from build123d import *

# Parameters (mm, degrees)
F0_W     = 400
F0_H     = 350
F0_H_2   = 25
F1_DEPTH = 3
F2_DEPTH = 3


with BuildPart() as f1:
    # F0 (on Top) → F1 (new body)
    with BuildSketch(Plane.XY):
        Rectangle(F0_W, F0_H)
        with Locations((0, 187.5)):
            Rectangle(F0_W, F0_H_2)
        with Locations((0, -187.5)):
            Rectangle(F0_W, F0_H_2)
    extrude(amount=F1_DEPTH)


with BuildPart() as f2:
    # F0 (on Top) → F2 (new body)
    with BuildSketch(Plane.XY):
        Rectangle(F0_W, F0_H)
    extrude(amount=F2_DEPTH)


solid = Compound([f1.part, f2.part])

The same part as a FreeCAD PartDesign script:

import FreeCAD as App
import Part
import Sketcher
from FreeCAD import Vector


def add_polygon(sketch, points):
    """Adds a closed chain of lines whose ends are joined by coincident constraints."""
    first, n = sketch.GeometryCount, len(points)
    for a, b in zip(points, points[1:] + points[:1]):
        sketch.addGeometry(Part.LineSegment(App.Vector(*a, 0), App.Vector(*b, 0)), False)
    for i in range(n):
        sketch.addConstraint(Sketcher.Constraint("Coincident", first + i, 2, first + (i + 1) % n, 1))

doc = App.newDocument("Part")
body = doc.addObject("PartDesign::Body", "Body")

# Sketch on XY plane
sketch1 = doc.addObject("Sketcher::SketchObject", "Sketch")
body.addObject(sketch1)
sketch1.AttachmentSupport = (doc.XY_Plane, [""])
sketch1.MapMode = "FlatFace"
add_polygon(sketch1, [(200, 200), (-200, 200), (-200, -200), (200, -200)])  # lines 0-3
sketch1.addConstraint([
    Sketcher.Constraint("Horizontal", 0),
    Sketcher.Constraint("Vertical", 1),
    Sketcher.Constraint("Horizontal", 2),
    Sketcher.Constraint("Vertical", 3),
    Sketcher.Constraint("Symmetric", 0, 2, 2, 2, -1, 1),
    Sketcher.Constraint("Equal", 2, 1),
    Sketcher.Constraint("DistanceX", 0, 2, 0, 1, 400.0),
])
pad1 = doc.addObject("PartDesign::Pad", "Pad")
body.addObject(pad1)
pad1.Profile = sketch1
pad1.Length = 3
body2 = doc.addObject("PartDesign::Body", "Body001")

# Sketch on XY plane
sketch2 = doc.addObject("Sketcher::SketchObject", "Sketch001")
body2.addObject(sketch2)
sketch2.AttachmentSupport = (doc.getObject("XY_Plane001"), [""])
sketch2.MapMode = "FlatFace"
add_polygon(sketch2, [(-200, 175), (-200, -175), (200, -175), (200, 175)])  # lines 0-3
sketch2.addConstraint([
    Sketcher.Constraint("Vertical", 0),
    Sketcher.Constraint("Horizontal", 1),
    Sketcher.Constraint("Vertical", 2),
    Sketcher.Constraint("Horizontal", 3),
    Sketcher.Constraint("Symmetric", 0, 2, 2, 2, -1, 1),
    Sketcher.Constraint("DistanceX", 1, 1, 1, 2, 400.0),
    Sketcher.Constraint("DistanceY", 0, 2, 0, 1, 350.0),
])
pad2 = doc.addObject("PartDesign::Pad", "Pad001")
body2.addObject(pad2)
pad2.Profile = sketch2
pad2.Length = 3

doc.recompute()
